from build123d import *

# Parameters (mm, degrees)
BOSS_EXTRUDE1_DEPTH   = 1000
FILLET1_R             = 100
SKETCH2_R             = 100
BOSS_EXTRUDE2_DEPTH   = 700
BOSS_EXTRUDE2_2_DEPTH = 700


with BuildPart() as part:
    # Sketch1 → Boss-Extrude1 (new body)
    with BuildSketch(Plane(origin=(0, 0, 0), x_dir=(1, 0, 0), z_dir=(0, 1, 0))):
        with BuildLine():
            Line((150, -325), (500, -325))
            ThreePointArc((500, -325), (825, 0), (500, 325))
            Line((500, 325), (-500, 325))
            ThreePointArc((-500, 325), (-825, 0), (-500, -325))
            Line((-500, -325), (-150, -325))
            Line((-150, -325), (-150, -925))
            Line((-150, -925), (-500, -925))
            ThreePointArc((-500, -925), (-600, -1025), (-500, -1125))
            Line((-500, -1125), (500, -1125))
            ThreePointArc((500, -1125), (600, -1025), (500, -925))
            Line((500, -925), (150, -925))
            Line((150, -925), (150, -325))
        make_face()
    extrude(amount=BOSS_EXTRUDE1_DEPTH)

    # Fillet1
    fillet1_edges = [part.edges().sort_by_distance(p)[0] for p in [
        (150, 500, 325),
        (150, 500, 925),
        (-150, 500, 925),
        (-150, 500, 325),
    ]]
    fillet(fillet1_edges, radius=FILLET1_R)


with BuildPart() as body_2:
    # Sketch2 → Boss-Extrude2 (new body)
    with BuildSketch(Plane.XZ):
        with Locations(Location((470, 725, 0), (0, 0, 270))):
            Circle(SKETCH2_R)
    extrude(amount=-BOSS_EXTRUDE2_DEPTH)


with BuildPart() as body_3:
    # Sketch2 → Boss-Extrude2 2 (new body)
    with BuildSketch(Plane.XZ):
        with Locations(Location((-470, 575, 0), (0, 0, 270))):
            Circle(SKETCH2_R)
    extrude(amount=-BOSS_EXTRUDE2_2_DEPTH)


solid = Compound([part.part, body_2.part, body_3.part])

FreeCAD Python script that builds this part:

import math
import FreeCAD as App
import Part
import Sketcher


def edges_at(feature, points):
    """Names of the edges that pass closest to the given points."""
    edges = feature.Shape.Edges
    near = lambda p: min(range(len(edges)), key=lambda i: edges[i].distToShape(Part.Vertex(*p))[0])
    return sorted({f"Edge{near(p) + 1}" for p in points})

doc = App.newDocument("Part")
body = doc.addObject("PartDesign::Body", "Body")

sketch1 = body.newObject("Sketcher::SketchObject", "Sketch")
sketch1.AttachmentSupport = (doc.getObject("XZ_Plane"), [""])
sketch1.MapMode = "FlatFace"
sketch1.addGeometry([
    Part.LineSegment(App.Vector(150, 325, 0), App.Vector(500, 325, 0)),
    Part.ArcOfCircle(Part.Circle(App.Vector(500, 0, 0), App.Vector(0, 0, 1), 325), math.radians(-90), math.radians(90)),
    Part.LineSegment(App.Vector(500, -325, 0), App.Vector(-500, -325, 0)),
    Part.ArcOfCircle(Part.Circle(App.Vector(-500, 0, 0), App.Vector(0, 0, 1), 325), math.radians(90), math.radians(270)),
    Part.LineSegment(App.Vector(-500, 325, 0), App.Vector(-150, 325, 0)),
    Part.LineSegment(App.Vector(-150, 325, 0), App.Vector(-150, 925, 0)),
    Part.LineSegment(App.Vector(-150, 925, 0), App.Vector(-500, 925, 0)),
    Part.ArcOfCircle(Part.Circle(App.Vector(-500, 1025, 0), App.Vector(0, 0, 1), 100), math.radians(90), math.radians(270)),
    Part.LineSegment(App.Vector(-500, 1125, 0), App.Vector(500, 1125, 0)),
    Part.ArcOfCircle(Part.Circle(App.Vector(500, 1025, 0), App.Vector(0, 0, 1), 100), math.radians(-90), math.radians(90)),
    Part.LineSegment(App.Vector(500, 925, 0), App.Vector(150, 925, 0)),
    Part.LineSegment(App.Vector(150, 925, 0), App.Vector(150, 325, 0)),
], False)
sketch1.addConstraint([
    Sketcher.Constraint("Tangent", 0, 2, 1, 2),
    Sketcher.Constraint("Tangent", 1, 1, 2, 1),
    Sketcher.Constraint("Tangent", 2, 2, 3, 2),
    Sketcher.Constraint("Tangent", 3, 1, 4, 1),
    Sketcher.Constraint("Coincident", 4, 2, 5, 1),
    Sketcher.Constraint("Coincident", 5, 2, 6, 1),
    Sketcher.Constraint("Tangent", 6, 2, 7, 2),
    Sketcher.Constraint("Tangent", 7, 1, 8, 1),
    Sketcher.Constraint("Tangent", 8, 2, 9, 2),
    Sketcher.Constraint("Tangent", 9, 1, 10, 1),
    Sketcher.Constraint("Coincident", 10, 2, 11, 1),
    Sketcher.Constraint("Coincident", 11, 2, 0, 1),
    Sketcher.Constraint("Horizontal", 0),
    Sketcher.Constraint("Horizontal", 2),
    Sketcher.Constraint("Horizontal", 4),
    Sketcher.Constraint("Vertical", 5),
    Sketcher.Constraint("Horizontal", 6),
    Sketcher.Constraint("Horizontal", 8),
    Sketcher.Constraint("Horizontal", 10),
    Sketcher.Constraint("Vertical", 11),
    Sketcher.Constraint("Equal", 1, 3),
    Sketcher.Constraint("Equal", 7, 9),
    Sketcher.Constraint("Symmetric", 1, 3, 3, 3, -1, 1),
    Sketcher.Constraint("Vertical", 3, 3, 7, 3),
    Sketcher.Constraint("Vertical", 1, 3, 9, 3),
    Sketcher.Constraint("Equal", 0, 4),
    Sketcher.Constraint("Radius", 1, 325.0),
    Sketcher.Constraint("Radius", 7, 100.0),
    Sketcher.Constraint("DistanceX", 0, 1, 0, 2, 350.0),
    Sketcher.Constraint("DistanceX", 2, 2, 2, 1, 1000.0),
    Sketcher.Constraint("DistanceY", 5, 1, 5, 2, 600.0),
])
pad1 = body.newObject("PartDesign::Pad", "Pad")
pad1.Profile = sketch1
pad1.Length = 1000
pad1.Reversed = True
doc.recompute()

fillet = body.newObject("PartDesign::Fillet", "Fillet")
fillet.Base = (pad1, edges_at(pad1, [
    (150, 500, 325),
    (150, 500, 925),
    (-150, 500, 925),
    (-150, 500, 325),
]))
fillet.Radius = 100
body2 = doc.addObject("PartDesign::Body", "Body001")

sketch2 = body2.newObject("Sketcher::SketchObject", "Sketch001")
sketch2.AttachmentSupport = (doc.getObject("XZ_Plane001"), [""])
sketch2.MapMode = "FlatFace"
sketch2.addGeometry(Part.Circle(App.Vector(470, 725, 0), App.Vector(0, 0, 1), 100), False)
sketch2.addConstraint([
    Sketcher.Constraint("Diameter", 0, 200.0),
    Sketcher.Constraint("DistanceX", -1, 1, 0, 3, 470.0),
    Sketcher.Constraint("DistanceY", -1, 1, 0, 3, 725.0),
])
pad2 = body2.newObject("PartDesign::Pad", "Pad001")
pad2.Profile = sketch2
pad2.Length = 700
pad2.Reversed = True
body3 = doc.addObject("PartDesign::Body", "Body002")

sketch3 = body3.newObject("Sketcher::SketchObject", "Sketch002")
sketch3.AttachmentSupport = (doc.getObject("XZ_Plane002"), [""])
sketch3.MapMode = "FlatFace"
sketch3.addGeometry(Part.Circle(App.Vector(-470, 575, 0), App.Vector(0, 0, 1), 100), False)
sketch3.addConstraint([
    Sketcher.Constraint("Diameter", 0, 200.0),
    Sketcher.Constraint("DistanceX", 0, 3, -1, 1, 470.0),
    Sketcher.Constraint("DistanceY", -1, 1, 0, 3, 575.0),
])
pad3 = body3.newObject("PartDesign::Pad", "Pad002")
pad3.Profile = sketch3
pad3.Length = 700
pad3.Reversed = True

doc.recompute()
